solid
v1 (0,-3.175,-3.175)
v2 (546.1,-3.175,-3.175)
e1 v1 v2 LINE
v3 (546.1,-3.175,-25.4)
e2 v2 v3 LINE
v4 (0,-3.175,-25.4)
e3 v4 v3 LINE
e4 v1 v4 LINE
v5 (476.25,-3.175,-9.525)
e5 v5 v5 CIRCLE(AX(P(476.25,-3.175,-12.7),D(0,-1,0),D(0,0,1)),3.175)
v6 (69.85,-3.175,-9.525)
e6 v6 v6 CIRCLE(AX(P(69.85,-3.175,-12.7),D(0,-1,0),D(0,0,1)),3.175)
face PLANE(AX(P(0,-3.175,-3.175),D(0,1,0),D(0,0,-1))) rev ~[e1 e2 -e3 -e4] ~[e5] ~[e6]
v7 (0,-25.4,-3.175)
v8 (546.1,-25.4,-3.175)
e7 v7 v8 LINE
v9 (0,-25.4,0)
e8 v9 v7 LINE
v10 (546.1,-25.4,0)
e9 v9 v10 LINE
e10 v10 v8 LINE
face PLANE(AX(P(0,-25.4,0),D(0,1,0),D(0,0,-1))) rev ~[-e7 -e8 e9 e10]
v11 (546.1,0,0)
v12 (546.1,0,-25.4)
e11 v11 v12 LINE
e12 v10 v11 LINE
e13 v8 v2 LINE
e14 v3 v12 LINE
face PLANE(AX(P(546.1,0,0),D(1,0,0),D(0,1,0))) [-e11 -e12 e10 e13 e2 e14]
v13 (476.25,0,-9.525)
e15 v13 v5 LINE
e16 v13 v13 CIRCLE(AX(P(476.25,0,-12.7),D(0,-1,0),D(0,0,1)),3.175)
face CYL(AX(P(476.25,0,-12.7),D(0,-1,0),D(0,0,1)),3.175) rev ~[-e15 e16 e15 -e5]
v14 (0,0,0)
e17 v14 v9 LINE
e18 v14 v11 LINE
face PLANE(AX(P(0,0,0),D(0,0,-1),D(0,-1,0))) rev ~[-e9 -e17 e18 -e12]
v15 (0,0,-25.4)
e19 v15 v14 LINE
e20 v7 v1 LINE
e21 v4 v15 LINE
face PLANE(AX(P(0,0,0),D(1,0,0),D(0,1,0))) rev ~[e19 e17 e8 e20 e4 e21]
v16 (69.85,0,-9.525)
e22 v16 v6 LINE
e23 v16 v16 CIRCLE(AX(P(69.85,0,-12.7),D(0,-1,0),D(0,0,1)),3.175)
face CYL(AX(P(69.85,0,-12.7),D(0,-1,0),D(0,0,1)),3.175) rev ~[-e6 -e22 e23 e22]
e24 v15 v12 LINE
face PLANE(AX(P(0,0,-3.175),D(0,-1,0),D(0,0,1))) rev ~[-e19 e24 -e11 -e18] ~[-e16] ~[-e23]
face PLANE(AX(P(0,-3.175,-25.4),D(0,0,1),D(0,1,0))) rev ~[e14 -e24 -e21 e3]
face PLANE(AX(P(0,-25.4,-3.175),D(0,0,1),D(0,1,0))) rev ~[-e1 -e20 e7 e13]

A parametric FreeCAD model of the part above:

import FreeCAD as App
import Part
import Sketcher

V = App.Vector
Q = App.Units.Quantity

doc = App.newDocument("Part")
params = doc.addObject("Spreadsheet::Sheet", "Params")
for row, (alias, value) in enumerate([
    ("sketch1_width", "1 in"),
    ("sketch1_width2", "0.125 in"),
    ("pad1_length", "21.5 in"),
    ("sketch2_diameter", "0.25 in"),
    ("hole_diameter", "0.25 in"),
], start=1):
    params.set(f"A{row}", alias)
    params.set(f"B{row}", "=" + value)
    params.setAlias(f"B{row}", alias)

body = doc.addObject("PartDesign::Body", "Body")

# Sketch on YZ plane
sketch1 = doc.addObject("Sketcher::SketchObject", "Sketch")
body.addObject(sketch1)
sketch1.AttachmentSupport = (doc.YZ_Plane, [""])
sketch1.MapMode = "FlatFace"
sketch1.addGeometry(Part.LineSegment(V(0, 0, 0), V(-25.4, 0, 0)), False)
sketch1.addGeometry(Part.LineSegment(V(-25.4, 0, 0), V(-25.4, -3.2, 0)), False)
sketch1.addGeometry(Part.LineSegment(V(-25.4, -3.2, 0), V(-3.2, -3.2, 0)), False)
sketch1.addGeometry(Part.LineSegment(V(-3.2, -3.2, 0), V(-3.2, -25.4, 0)), False)
sketch1.addGeometry(Part.LineSegment(V(-3.2, -25.4, 0), V(0, -25.4, 0)), False)
sketch1.addGeometry(Part.LineSegment(V(0, -25.4, 0), V(0, 0, 0)), False)
sketch1.addConstraint(Sketcher.Constraint("Coincident", 0, 2, 1, 1))
sketch1.addConstraint(Sketcher.Constraint("Coincident", 1, 2, 2, 1))
sketch1.addConstraint(Sketcher.Constraint("Coincident", 2, 2, 3, 1))
sketch1.addConstraint(Sketcher.Constraint("Coincident", 3, 2, 4, 1))
sketch1.addConstraint(Sketcher.Constraint("Coincident", 4, 2, 5, 1))
sketch1.addConstraint(Sketcher.Constraint("Coincident", 5, 2, 0, 1))
sketch1.addConstraint(Sketcher.Constraint("Horizontal", 0))
sketch1.addConstraint(Sketcher.Constraint("Vertical", 1))
sketch1.addConstraint(Sketcher.Constraint("Horizontal", 2))
sketch1.addConstraint(Sketcher.Constraint("Vertical", 3))
sketch1.addConstraint(Sketcher.Constraint("Horizontal", 4))
sketch1.addConstraint(Sketcher.Constraint("Vertical", 5))
sketch1.addConstraint(Sketcher.Constraint("Coincident", 5, 2, -1, 1))
sketch1.addConstraint(Sketcher.Constraint("Equal", 4, 1))
sketch1.addConstraint(Sketcher.Constraint("Equal", 2, 3))
sketch1.addConstraint(Sketcher.Constraint("DistanceX", 0, 2, 0, 1, Q("1 in")))
sketch1.addConstraint(Sketcher.Constraint("DistanceX", 4, 1, 4, 2, Q("0.125 in")))
sketch1.setExpression("Constraints[15]", "Params.sketch1_width")
sketch1.setExpression("Constraints[16]", "Params.sketch1_width2")
pad1 = doc.addObject("PartDesign::Pad", "Pad")
body.addObject(pad1)
pad1.Profile = sketch1
pad1.setExpression("Length", "Params.pad1_length")

# Sketch on XZ plane
sketch2 = doc.addObject("Sketcher::SketchObject", "Sketch001")
body.addObject(sketch2)
sketch2.AttachmentSupport = (doc.XZ_Plane, [""])
sketch2.MapMode = "FlatFace"
sketch2.addGeometry(Part.Circle(V(476.2, -12.7, 0), V(0, 0, 1), 3.2), False)
sketch2.addGeometry(Part.Circle(V(69.8, -12.7, 0), V(0, 0, 1), 3.2), False)
sketch2.addConstraint(Sketcher.Constraint("Equal", 0, 1))
sketch2.addConstraint(Sketcher.Constraint("Horizontal", 0, 3, 1, 3))
sketch2.addConstraint(Sketcher.Constraint("Diameter", 0, Q("0.25 in")))
sketch2.addConstraint(Sketcher.Constraint("DistanceX", 1, 3, 0, 3, Q("16 in")))
sketch2.addConstraint(Sketcher.Constraint("DistanceY", 0, 3, -1, 1, Q("0.5 in")))
sketch2.addConstraint(Sketcher.Constraint("DistanceX", -1, 1, 0, 3, Q("18.75 in")))
sketch2.setExpression("Constraints[2]", "Params.sketch2_diameter")
doc.recompute()
hole = doc.addObject("PartDesign::Hole", "Hole")
body.addObject(hole)
hole.Profile = sketch2
hole.ThreadType = "None"
hole.setExpression("Diameter", "Params.hole_diameter")
hole.DepthType = "ThroughAll"
hole.Reversed = True

doc.recompute()
